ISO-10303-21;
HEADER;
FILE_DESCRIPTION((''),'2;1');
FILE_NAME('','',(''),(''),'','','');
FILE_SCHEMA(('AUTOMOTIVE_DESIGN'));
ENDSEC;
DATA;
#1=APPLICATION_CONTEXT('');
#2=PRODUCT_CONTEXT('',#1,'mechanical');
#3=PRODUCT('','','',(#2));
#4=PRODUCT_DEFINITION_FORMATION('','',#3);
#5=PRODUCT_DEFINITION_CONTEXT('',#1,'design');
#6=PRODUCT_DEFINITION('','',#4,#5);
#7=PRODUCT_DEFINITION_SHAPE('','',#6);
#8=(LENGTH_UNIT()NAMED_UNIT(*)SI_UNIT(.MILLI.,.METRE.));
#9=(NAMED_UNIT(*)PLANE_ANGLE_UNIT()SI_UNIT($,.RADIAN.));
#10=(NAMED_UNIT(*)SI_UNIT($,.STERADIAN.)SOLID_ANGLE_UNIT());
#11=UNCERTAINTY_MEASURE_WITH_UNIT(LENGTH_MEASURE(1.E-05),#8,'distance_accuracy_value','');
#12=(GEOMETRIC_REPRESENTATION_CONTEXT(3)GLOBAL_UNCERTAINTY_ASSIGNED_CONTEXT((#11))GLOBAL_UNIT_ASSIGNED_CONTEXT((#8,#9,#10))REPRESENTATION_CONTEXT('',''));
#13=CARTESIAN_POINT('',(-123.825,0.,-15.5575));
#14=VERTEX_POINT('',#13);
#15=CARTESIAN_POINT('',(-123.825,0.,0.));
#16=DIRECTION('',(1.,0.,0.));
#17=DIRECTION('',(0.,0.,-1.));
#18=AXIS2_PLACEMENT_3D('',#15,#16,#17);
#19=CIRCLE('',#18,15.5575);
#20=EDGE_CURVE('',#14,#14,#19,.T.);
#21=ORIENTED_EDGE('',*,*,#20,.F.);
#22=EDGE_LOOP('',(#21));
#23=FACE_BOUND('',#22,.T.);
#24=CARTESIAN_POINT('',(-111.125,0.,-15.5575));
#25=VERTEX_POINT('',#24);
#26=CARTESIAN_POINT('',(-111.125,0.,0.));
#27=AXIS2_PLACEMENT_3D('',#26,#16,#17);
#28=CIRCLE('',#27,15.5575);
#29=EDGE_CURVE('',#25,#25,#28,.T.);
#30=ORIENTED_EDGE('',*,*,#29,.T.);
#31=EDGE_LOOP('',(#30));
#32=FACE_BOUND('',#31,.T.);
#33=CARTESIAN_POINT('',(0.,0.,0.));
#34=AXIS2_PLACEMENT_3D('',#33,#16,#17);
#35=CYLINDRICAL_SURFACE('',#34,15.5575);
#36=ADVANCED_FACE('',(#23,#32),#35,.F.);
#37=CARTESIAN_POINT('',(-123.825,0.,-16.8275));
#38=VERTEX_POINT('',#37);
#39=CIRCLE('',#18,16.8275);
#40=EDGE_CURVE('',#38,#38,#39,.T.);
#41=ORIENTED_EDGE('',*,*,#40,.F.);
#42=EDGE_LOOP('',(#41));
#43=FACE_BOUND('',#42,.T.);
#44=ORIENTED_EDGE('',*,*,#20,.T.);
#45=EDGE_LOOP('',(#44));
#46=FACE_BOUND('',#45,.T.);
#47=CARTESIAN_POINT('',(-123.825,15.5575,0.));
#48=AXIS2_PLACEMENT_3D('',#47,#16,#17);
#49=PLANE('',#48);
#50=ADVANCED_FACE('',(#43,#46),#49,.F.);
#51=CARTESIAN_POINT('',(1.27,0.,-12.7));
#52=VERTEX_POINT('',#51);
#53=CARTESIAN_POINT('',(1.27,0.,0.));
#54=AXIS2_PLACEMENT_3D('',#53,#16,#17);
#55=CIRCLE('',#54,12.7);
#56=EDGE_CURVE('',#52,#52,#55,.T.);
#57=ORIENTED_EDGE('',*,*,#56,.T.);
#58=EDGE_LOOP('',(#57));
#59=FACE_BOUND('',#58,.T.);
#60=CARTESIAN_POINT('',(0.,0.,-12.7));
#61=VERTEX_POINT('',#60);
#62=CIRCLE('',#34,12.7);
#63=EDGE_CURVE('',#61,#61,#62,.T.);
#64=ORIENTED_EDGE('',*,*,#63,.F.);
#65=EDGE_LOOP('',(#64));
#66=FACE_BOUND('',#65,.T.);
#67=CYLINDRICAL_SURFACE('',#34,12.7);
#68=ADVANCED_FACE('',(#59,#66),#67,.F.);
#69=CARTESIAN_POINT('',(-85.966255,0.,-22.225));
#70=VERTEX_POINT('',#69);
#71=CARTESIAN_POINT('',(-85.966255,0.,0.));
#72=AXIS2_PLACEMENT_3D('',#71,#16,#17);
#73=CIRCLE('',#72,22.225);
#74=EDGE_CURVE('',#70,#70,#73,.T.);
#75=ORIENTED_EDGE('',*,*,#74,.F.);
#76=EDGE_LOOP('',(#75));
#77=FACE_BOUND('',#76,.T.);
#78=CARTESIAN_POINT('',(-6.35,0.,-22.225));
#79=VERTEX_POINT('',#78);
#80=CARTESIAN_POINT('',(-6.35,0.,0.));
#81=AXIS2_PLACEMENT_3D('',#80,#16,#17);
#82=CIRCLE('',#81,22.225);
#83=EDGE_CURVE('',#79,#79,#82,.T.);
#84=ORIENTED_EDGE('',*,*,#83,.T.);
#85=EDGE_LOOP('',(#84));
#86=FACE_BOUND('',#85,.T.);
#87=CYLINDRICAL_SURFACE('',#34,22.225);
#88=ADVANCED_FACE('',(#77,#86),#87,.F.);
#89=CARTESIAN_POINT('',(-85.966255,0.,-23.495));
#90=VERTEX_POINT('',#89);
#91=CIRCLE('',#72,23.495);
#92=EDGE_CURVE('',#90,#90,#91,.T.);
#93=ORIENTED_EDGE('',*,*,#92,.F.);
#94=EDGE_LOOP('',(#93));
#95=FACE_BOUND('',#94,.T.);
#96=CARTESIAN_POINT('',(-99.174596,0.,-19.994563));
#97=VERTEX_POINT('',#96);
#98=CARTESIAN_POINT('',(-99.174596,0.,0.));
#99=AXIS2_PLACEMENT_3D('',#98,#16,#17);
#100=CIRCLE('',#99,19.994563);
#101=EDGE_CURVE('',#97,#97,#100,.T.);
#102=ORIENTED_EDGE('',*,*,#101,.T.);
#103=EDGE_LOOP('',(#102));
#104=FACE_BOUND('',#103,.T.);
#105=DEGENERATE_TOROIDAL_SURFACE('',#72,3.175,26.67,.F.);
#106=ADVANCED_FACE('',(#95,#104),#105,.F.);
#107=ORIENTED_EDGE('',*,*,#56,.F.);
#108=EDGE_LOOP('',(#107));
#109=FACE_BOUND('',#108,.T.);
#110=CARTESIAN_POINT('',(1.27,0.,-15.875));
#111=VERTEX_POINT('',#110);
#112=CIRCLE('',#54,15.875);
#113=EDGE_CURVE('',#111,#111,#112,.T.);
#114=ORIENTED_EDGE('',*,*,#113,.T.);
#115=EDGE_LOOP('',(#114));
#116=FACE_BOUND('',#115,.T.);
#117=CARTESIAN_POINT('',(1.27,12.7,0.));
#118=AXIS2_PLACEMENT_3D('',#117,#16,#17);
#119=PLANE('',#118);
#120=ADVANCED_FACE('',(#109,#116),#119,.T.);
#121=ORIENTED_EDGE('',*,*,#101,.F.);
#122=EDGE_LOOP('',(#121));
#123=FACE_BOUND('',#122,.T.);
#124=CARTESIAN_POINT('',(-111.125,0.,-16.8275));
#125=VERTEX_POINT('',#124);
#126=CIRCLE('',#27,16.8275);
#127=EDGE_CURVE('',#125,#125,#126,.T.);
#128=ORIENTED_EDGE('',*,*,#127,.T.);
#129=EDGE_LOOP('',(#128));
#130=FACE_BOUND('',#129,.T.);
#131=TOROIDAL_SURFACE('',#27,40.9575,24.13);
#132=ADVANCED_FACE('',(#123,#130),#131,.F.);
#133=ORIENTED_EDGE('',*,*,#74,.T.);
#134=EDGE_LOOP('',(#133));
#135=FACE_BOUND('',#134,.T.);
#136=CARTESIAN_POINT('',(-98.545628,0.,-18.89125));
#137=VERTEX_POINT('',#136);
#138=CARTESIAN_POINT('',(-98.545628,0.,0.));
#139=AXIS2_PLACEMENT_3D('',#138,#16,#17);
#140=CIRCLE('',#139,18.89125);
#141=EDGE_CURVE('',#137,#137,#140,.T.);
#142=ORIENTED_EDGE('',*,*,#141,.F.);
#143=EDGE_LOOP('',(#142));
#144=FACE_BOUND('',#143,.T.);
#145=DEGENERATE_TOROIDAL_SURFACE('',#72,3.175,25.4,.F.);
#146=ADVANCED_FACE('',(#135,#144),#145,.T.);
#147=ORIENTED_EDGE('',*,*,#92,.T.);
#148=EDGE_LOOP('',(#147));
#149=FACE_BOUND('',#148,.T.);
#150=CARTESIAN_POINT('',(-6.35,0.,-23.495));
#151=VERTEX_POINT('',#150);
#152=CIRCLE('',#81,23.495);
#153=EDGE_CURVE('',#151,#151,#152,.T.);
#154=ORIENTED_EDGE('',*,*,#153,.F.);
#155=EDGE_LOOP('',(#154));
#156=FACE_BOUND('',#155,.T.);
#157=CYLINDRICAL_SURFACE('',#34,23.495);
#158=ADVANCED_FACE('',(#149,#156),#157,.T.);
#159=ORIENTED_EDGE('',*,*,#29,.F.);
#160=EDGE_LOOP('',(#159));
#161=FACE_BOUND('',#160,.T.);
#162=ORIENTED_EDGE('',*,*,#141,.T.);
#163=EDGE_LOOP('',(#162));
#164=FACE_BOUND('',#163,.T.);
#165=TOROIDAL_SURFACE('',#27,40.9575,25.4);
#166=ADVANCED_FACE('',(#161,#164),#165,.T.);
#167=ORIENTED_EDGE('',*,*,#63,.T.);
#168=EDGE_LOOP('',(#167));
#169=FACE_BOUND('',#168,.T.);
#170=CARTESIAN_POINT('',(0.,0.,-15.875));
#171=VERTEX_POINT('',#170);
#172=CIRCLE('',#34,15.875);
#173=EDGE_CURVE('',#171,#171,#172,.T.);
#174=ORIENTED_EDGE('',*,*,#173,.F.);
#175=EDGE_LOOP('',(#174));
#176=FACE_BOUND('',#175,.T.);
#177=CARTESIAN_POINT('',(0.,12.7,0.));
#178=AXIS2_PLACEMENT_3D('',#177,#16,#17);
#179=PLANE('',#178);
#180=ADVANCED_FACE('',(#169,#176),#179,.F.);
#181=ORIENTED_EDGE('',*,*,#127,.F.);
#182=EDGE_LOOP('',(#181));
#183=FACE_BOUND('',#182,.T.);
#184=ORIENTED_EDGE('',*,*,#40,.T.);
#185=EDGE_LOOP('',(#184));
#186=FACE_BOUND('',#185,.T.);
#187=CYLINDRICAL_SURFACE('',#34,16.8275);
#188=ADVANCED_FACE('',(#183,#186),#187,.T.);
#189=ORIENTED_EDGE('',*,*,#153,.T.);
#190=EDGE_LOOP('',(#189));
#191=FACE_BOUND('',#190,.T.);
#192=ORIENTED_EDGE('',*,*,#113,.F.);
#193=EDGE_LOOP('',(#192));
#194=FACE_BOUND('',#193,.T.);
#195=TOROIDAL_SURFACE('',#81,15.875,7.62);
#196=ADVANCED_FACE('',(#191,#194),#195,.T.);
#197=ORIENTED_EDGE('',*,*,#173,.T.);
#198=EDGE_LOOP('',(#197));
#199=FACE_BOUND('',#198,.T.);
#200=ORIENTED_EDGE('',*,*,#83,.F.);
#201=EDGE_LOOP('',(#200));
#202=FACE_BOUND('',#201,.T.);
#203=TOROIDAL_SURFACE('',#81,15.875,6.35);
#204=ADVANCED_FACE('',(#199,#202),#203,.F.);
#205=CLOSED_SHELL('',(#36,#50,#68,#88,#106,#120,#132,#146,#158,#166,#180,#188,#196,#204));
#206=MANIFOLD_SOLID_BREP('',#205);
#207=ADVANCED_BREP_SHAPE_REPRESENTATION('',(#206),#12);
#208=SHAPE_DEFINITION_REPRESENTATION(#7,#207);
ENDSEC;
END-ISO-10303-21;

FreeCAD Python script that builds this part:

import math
import FreeCAD as App
import Part
import Sketcher

V = App.Vector
Q = App.Units.Quantity

doc = App.newDocument("Part")
body = doc.addObject("PartDesign::Body", "Body")

sketch1 = doc.addObject("Sketcher::SketchObject", "Sketch")
body.addObject(sketch1)
sketch1.AttachmentSupport = (doc.XY_Plane, [""])
sketch1.MapMode = "FlatFace"
sketch1.addGeometry([
    Part.LineSegment(V(0, 15.875, 0), V(0, 12.7, 0)),
    Part.LineSegment(V(0, 12.7, 0), V(1.27, 12.7, 0)),
    Part.LineSegment(V(1.27, 12.7, 0), V(1.27, 15.875, 0)),
    Part.ArcOfCircle(Part.Circle(V(-6.35, 15.875, 0), V(0, 0, 1), 7.62), math.radians(0), math.radians(90)),
    Part.LineSegment(V(-6.35, 23.495, 0), V(-85.966255, 23.495, 0)),
    Part.ArcOfCircle(Part.Circle(V(-85.966255, -3.175, 0), V(0, 0, 1), 26.67), math.radians(90), math.radians(119.686295)),
    Part.ArcOfCircle(Part.Circle(V(-111.125, 40.9575, 0), V(0, 0, 1), 24.13), math.radians(-90), math.radians(-60.313705)),
    Part.LineSegment(V(-111.125, 16.8275, 0), V(-123.825, 16.8275, 0)),
    Part.LineSegment(V(-123.825, 16.8275, 0), V(-123.825, 15.5575, 0)),
    Part.LineSegment(V(-123.825, 15.5575, 0), V(-111.125, 15.5575, 0)),
    Part.ArcOfCircle(Part.Circle(V(-111.125, 40.9575, 0), V(0, 0, 1), 25.4), math.radians(-90), math.radians(-60.313705)),
    Part.ArcOfCircle(Part.Circle(V(-85.966255, -3.175, 0), V(0, 0, 1), 25.4), math.radians(90), math.radians(119.686295)),
    Part.LineSegment(V(-85.966255, 22.225, 0), V(-6.35, 22.225, 0)),
    Part.ArcOfCircle(Part.Circle(V(-6.35, 15.875, 0), V(0, 0, 1), 6.35), math.radians(0), math.radians(90)),
], False)
sketch1.addConstraint([
    Sketcher.Constraint("Coincident", 0, 2, 1, 1),
    Sketcher.Constraint("Coincident", 1, 2, 2, 1),
    Sketcher.Constraint("Tangent", 2, 2, 3, 1),
    Sketcher.Constraint("Tangent", 3, 2, 4, 1),
    Sketcher.Constraint("Tangent", 4, 2, 5, 1),
    Sketcher.Constraint("Tangent", 5, 2, 6, 2),
    Sketcher.Constraint("Tangent", 6, 1, 7, 1),
    Sketcher.Constraint("Coincident", 7, 2, 8, 1),
    Sketcher.Constraint("Coincident", 8, 2, 9, 1),
    Sketcher.Constraint("Tangent", 9, 2, 10, 1),
    Sketcher.Constraint("Tangent", 10, 2, 11, 2),
    Sketcher.Constraint("Tangent", 11, 1, 12, 1),
    Sketcher.Constraint("Tangent", 12, 2, 13, 2),
    Sketcher.Constraint("Tangent", 13, 1, 0, 1),
    Sketcher.Constraint("Vertical", 0),
    Sketcher.Constraint("Horizontal", 1),
    Sketcher.Constraint("Vertical", 2),
    Sketcher.Constraint("Horizontal", 4),
    Sketcher.Constraint("Horizontal", 7),
    Sketcher.Constraint("Vertical", 8),
    Sketcher.Constraint("Horizontal", 9),
    Sketcher.Constraint("Horizontal", 12),
    Sketcher.Constraint("Coincident", 10, 3, 6, 3),
    Sketcher.Constraint("Coincident", 11, 3, 5, 3),
    Sketcher.Constraint("Coincident", 13, 3, 3, 3),
    Sketcher.Constraint("Equal", 10, 11),
    Sketcher.Constraint("PointOnObject", 0, 2, -2),
    Sketcher.Constraint("Radius", 10, Q("1 in")),
    Sketcher.Constraint("Radius", 3, Q("0.3 in")),
    Sketcher.Constraint("Radius", 5, Q("1.05 in")),
    Sketcher.Constraint("DistanceX", 7, 2, 7, 1, Q("0.5 in")),
    Sketcher.Constraint("DistanceY", -1, 1, 0, 2, Q("0.5 in")),
    Sketcher.Constraint("DistanceY", 0, 2, 0, 1, Q("0.125 in")),
    Sketcher.Constraint("DistanceX", 6, 3, -1, 1, Q("4.375 in")),
    Sketcher.Constraint("DistanceY", 4, 2, 6, 3, Q("0.6875 in")),
])
revolution = doc.addObject("PartDesign::Revolution", "Revolution")
body.addObject(revolution)
revolution.Profile = sketch1
revolution.ReferenceAxis = (sketch1, ["H_Axis"])
revolution.Angle = 360

doc.recompute()
